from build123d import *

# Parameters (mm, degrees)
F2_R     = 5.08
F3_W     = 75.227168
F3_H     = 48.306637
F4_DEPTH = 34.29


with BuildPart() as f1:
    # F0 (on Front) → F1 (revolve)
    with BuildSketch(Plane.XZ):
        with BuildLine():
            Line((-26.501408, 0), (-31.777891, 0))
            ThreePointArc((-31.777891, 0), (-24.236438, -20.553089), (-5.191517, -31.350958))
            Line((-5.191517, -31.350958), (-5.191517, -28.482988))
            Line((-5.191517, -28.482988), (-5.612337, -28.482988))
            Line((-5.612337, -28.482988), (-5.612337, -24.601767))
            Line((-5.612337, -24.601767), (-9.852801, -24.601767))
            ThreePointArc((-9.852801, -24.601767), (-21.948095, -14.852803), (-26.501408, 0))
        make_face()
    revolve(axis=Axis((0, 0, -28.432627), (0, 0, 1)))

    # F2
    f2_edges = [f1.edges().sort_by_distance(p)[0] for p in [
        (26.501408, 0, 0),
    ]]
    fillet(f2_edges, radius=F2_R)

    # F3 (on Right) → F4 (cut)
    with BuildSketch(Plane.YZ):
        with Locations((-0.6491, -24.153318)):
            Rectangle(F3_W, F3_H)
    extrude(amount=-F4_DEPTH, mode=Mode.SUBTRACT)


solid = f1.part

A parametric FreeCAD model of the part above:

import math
import FreeCAD as App
import Part
import Sketcher
Q = App.Units.Quantity


def edges_at(feature, points):
    """Names of the edges that pass closest to the given points."""
    edges = feature.Shape.Edges
    near = lambda p: min(range(len(edges)), key=lambda i: edges[i].distToShape(Part.Vertex(*p))[0])
    return sorted({f"Edge{near(p) + 1}" for p in points})


def add_polygon(sketch, points):
    """Adds a closed chain of lines whose ends are joined by coincident constraints."""
    first, n = sketch.GeometryCount, len(points)
    for a, b in zip(points, points[1:] + points[:1]):
        sketch.addGeometry(Part.LineSegment(App.Vector(*a, 0), App.Vector(*b, 0)), False)
    for i in range(n):
        sketch.addConstraint(Sketcher.Constraint("Coincident", first + i, 2, first + (i + 1) % n, 1))

doc = App.newDocument("Part")
body = doc.addObject("PartDesign::Body", "Body")

sketch1 = body.newObject("Sketcher::SketchObject", "Sketch")
sketch1.AttachmentSupport = (doc.getObject("XZ_Plane"), [""])
sketch1.MapMode = "FlatFace"
sketch1.addGeometry(Part.LineSegment(App.Vector(-26.5, 0, 0), App.Vector(-31.78, 0, 0)), False)
sketch1.addGeometry(Part.ArcOfCircle(Part.Circle(App.Vector(0, 0, 0), App.Vector(0, 0, 1), 31.78), math.radians(180), math.radians(261)), False)
sketch1.addGeometry(Part.LineSegment(App.Vector(-5.19, -31.35, 0), App.Vector(-5.19, -28.48, 0)), False)
sketch1.addGeometry(Part.LineSegment(App.Vector(-5.19, -28.48, 0), App.Vector(-5.61, -28.48, 0)), False)
sketch1.addGeometry(Part.LineSegment(App.Vector(-5.61, -28.48, 0), App.Vector(-5.61, -24.6, 0)), False)
sketch1.addGeometry(Part.LineSegment(App.Vector(-5.61, -24.6, 0), App.Vector(-9.85, -24.6, 0)), False)
sketch1.addGeometry(Part.ArcOfCircle(Part.Circle(App.Vector(0, 0, 0), App.Vector(0, 0, 1), 26.5), math.radians(180), math.radians(248)), False)
sketch1.addConstraint(Sketcher.Constraint("Coincident", 0, 2, 1, 1))
sketch1.addConstraint(Sketcher.Constraint("Coincident", 1, 2, 2, 1))
sketch1.addConstraint(Sketcher.Constraint("Coincident", 2, 2, 3, 1))
sketch1.addConstraint(Sketcher.Constraint("Coincident", 3, 2, 4, 1))
sketch1.addConstraint(Sketcher.Constraint("Coincident", 4, 2, 5, 1))
sketch1.addConstraint(Sketcher.Constraint("Coincident", 5, 2, 6, 2))
sketch1.addConstraint(Sketcher.Constraint("Coincident", 6, 1, 0, 1))
sketch1.addConstraint(Sketcher.Constraint("Horizontal", 0))
sketch1.addConstraint(Sketcher.Constraint("Vertical", 2))
sketch1.addConstraint(Sketcher.Constraint("Horizontal", 3))
sketch1.addConstraint(Sketcher.Constraint("Vertical", 4))
sketch1.addConstraint(Sketcher.Constraint("Horizontal", 5))
sketch1.addConstraint(Sketcher.Constraint("Coincident", 1, 3, -1, 1))
sketch1.addConstraint(Sketcher.Constraint("Coincident", 6, 3, -1, 1))
sketch1.addConstraint(Sketcher.Constraint("PointOnObject", 0, 2, -1))
sketch1.addConstraint(Sketcher.Constraint("Radius", 1, 31.777891))
sketch1.addConstraint(Sketcher.Constraint("Radius", 6, 26.501408))
sketch1.addConstraint(Sketcher.Constraint("DistanceX", 3, 2, 3, 1, 0.42082))
sketch1.addConstraint(Sketcher.Constraint("DistanceY", 2, 1, 2, 2, 2.86797))
sketch1.addConstraint(Sketcher.Constraint("DistanceY", 4, 1, 4, 2, 3.881221))
sketch1.addConstraint(Sketcher.Constraint("DistanceX", 5, 2, -1, 1, 9.852801))
revolution = body.newObject("PartDesign::Revolution", "Revolution")
revolution.Profile = sketch1
revolution.ReferenceAxis = (sketch1, ["V_Axis"])
revolution.Angle = 360
doc.recompute()

fillet = body.newObject("PartDesign::Fillet", "Fillet")
fillet.Base = (revolution, edges_at(revolution, [(26.501, 0, 0)]))
fillet.Radius = Q("0.2 in")

sketch2 = body.newObject("Sketcher::SketchObject", "Sketch001")
sketch2.AttachmentSupport = (doc.getObject("YZ_Plane"), [""])
sketch2.MapMode = "FlatFace"
add_polygon(sketch2, [(-38, 0), (-38, -48), (37, -48), (37, 0)])
sketch2.addConstraint(Sketcher.Constraint("Vertical", 0))
sketch2.addConstraint(Sketcher.Constraint("Horizontal", 1))
sketch2.addConstraint(Sketcher.Constraint("Vertical", 2))
sketch2.addConstraint(Sketcher.Constraint("Horizontal", 3))
sketch2.addConstraint(Sketcher.Constraint("PointOnObject", 2, 2, -1))
sketch2.addConstraint(Sketcher.Constraint("DistanceX", 1, 1, 1, 2, 75.227168))
sketch2.addConstraint(Sketcher.Constraint("DistanceY", 0, 2, 0, 1, 48.306637))
sketch2.addConstraint(Sketcher.Constraint("DistanceX", 0, 2, -1, 1, 38.262684))
pocket1 = body.newObject("PartDesign::Pocket", "Pocket")
pocket1.Profile = sketch2
pocket1.Length = Q("1.35 in")

doc.recompute()
